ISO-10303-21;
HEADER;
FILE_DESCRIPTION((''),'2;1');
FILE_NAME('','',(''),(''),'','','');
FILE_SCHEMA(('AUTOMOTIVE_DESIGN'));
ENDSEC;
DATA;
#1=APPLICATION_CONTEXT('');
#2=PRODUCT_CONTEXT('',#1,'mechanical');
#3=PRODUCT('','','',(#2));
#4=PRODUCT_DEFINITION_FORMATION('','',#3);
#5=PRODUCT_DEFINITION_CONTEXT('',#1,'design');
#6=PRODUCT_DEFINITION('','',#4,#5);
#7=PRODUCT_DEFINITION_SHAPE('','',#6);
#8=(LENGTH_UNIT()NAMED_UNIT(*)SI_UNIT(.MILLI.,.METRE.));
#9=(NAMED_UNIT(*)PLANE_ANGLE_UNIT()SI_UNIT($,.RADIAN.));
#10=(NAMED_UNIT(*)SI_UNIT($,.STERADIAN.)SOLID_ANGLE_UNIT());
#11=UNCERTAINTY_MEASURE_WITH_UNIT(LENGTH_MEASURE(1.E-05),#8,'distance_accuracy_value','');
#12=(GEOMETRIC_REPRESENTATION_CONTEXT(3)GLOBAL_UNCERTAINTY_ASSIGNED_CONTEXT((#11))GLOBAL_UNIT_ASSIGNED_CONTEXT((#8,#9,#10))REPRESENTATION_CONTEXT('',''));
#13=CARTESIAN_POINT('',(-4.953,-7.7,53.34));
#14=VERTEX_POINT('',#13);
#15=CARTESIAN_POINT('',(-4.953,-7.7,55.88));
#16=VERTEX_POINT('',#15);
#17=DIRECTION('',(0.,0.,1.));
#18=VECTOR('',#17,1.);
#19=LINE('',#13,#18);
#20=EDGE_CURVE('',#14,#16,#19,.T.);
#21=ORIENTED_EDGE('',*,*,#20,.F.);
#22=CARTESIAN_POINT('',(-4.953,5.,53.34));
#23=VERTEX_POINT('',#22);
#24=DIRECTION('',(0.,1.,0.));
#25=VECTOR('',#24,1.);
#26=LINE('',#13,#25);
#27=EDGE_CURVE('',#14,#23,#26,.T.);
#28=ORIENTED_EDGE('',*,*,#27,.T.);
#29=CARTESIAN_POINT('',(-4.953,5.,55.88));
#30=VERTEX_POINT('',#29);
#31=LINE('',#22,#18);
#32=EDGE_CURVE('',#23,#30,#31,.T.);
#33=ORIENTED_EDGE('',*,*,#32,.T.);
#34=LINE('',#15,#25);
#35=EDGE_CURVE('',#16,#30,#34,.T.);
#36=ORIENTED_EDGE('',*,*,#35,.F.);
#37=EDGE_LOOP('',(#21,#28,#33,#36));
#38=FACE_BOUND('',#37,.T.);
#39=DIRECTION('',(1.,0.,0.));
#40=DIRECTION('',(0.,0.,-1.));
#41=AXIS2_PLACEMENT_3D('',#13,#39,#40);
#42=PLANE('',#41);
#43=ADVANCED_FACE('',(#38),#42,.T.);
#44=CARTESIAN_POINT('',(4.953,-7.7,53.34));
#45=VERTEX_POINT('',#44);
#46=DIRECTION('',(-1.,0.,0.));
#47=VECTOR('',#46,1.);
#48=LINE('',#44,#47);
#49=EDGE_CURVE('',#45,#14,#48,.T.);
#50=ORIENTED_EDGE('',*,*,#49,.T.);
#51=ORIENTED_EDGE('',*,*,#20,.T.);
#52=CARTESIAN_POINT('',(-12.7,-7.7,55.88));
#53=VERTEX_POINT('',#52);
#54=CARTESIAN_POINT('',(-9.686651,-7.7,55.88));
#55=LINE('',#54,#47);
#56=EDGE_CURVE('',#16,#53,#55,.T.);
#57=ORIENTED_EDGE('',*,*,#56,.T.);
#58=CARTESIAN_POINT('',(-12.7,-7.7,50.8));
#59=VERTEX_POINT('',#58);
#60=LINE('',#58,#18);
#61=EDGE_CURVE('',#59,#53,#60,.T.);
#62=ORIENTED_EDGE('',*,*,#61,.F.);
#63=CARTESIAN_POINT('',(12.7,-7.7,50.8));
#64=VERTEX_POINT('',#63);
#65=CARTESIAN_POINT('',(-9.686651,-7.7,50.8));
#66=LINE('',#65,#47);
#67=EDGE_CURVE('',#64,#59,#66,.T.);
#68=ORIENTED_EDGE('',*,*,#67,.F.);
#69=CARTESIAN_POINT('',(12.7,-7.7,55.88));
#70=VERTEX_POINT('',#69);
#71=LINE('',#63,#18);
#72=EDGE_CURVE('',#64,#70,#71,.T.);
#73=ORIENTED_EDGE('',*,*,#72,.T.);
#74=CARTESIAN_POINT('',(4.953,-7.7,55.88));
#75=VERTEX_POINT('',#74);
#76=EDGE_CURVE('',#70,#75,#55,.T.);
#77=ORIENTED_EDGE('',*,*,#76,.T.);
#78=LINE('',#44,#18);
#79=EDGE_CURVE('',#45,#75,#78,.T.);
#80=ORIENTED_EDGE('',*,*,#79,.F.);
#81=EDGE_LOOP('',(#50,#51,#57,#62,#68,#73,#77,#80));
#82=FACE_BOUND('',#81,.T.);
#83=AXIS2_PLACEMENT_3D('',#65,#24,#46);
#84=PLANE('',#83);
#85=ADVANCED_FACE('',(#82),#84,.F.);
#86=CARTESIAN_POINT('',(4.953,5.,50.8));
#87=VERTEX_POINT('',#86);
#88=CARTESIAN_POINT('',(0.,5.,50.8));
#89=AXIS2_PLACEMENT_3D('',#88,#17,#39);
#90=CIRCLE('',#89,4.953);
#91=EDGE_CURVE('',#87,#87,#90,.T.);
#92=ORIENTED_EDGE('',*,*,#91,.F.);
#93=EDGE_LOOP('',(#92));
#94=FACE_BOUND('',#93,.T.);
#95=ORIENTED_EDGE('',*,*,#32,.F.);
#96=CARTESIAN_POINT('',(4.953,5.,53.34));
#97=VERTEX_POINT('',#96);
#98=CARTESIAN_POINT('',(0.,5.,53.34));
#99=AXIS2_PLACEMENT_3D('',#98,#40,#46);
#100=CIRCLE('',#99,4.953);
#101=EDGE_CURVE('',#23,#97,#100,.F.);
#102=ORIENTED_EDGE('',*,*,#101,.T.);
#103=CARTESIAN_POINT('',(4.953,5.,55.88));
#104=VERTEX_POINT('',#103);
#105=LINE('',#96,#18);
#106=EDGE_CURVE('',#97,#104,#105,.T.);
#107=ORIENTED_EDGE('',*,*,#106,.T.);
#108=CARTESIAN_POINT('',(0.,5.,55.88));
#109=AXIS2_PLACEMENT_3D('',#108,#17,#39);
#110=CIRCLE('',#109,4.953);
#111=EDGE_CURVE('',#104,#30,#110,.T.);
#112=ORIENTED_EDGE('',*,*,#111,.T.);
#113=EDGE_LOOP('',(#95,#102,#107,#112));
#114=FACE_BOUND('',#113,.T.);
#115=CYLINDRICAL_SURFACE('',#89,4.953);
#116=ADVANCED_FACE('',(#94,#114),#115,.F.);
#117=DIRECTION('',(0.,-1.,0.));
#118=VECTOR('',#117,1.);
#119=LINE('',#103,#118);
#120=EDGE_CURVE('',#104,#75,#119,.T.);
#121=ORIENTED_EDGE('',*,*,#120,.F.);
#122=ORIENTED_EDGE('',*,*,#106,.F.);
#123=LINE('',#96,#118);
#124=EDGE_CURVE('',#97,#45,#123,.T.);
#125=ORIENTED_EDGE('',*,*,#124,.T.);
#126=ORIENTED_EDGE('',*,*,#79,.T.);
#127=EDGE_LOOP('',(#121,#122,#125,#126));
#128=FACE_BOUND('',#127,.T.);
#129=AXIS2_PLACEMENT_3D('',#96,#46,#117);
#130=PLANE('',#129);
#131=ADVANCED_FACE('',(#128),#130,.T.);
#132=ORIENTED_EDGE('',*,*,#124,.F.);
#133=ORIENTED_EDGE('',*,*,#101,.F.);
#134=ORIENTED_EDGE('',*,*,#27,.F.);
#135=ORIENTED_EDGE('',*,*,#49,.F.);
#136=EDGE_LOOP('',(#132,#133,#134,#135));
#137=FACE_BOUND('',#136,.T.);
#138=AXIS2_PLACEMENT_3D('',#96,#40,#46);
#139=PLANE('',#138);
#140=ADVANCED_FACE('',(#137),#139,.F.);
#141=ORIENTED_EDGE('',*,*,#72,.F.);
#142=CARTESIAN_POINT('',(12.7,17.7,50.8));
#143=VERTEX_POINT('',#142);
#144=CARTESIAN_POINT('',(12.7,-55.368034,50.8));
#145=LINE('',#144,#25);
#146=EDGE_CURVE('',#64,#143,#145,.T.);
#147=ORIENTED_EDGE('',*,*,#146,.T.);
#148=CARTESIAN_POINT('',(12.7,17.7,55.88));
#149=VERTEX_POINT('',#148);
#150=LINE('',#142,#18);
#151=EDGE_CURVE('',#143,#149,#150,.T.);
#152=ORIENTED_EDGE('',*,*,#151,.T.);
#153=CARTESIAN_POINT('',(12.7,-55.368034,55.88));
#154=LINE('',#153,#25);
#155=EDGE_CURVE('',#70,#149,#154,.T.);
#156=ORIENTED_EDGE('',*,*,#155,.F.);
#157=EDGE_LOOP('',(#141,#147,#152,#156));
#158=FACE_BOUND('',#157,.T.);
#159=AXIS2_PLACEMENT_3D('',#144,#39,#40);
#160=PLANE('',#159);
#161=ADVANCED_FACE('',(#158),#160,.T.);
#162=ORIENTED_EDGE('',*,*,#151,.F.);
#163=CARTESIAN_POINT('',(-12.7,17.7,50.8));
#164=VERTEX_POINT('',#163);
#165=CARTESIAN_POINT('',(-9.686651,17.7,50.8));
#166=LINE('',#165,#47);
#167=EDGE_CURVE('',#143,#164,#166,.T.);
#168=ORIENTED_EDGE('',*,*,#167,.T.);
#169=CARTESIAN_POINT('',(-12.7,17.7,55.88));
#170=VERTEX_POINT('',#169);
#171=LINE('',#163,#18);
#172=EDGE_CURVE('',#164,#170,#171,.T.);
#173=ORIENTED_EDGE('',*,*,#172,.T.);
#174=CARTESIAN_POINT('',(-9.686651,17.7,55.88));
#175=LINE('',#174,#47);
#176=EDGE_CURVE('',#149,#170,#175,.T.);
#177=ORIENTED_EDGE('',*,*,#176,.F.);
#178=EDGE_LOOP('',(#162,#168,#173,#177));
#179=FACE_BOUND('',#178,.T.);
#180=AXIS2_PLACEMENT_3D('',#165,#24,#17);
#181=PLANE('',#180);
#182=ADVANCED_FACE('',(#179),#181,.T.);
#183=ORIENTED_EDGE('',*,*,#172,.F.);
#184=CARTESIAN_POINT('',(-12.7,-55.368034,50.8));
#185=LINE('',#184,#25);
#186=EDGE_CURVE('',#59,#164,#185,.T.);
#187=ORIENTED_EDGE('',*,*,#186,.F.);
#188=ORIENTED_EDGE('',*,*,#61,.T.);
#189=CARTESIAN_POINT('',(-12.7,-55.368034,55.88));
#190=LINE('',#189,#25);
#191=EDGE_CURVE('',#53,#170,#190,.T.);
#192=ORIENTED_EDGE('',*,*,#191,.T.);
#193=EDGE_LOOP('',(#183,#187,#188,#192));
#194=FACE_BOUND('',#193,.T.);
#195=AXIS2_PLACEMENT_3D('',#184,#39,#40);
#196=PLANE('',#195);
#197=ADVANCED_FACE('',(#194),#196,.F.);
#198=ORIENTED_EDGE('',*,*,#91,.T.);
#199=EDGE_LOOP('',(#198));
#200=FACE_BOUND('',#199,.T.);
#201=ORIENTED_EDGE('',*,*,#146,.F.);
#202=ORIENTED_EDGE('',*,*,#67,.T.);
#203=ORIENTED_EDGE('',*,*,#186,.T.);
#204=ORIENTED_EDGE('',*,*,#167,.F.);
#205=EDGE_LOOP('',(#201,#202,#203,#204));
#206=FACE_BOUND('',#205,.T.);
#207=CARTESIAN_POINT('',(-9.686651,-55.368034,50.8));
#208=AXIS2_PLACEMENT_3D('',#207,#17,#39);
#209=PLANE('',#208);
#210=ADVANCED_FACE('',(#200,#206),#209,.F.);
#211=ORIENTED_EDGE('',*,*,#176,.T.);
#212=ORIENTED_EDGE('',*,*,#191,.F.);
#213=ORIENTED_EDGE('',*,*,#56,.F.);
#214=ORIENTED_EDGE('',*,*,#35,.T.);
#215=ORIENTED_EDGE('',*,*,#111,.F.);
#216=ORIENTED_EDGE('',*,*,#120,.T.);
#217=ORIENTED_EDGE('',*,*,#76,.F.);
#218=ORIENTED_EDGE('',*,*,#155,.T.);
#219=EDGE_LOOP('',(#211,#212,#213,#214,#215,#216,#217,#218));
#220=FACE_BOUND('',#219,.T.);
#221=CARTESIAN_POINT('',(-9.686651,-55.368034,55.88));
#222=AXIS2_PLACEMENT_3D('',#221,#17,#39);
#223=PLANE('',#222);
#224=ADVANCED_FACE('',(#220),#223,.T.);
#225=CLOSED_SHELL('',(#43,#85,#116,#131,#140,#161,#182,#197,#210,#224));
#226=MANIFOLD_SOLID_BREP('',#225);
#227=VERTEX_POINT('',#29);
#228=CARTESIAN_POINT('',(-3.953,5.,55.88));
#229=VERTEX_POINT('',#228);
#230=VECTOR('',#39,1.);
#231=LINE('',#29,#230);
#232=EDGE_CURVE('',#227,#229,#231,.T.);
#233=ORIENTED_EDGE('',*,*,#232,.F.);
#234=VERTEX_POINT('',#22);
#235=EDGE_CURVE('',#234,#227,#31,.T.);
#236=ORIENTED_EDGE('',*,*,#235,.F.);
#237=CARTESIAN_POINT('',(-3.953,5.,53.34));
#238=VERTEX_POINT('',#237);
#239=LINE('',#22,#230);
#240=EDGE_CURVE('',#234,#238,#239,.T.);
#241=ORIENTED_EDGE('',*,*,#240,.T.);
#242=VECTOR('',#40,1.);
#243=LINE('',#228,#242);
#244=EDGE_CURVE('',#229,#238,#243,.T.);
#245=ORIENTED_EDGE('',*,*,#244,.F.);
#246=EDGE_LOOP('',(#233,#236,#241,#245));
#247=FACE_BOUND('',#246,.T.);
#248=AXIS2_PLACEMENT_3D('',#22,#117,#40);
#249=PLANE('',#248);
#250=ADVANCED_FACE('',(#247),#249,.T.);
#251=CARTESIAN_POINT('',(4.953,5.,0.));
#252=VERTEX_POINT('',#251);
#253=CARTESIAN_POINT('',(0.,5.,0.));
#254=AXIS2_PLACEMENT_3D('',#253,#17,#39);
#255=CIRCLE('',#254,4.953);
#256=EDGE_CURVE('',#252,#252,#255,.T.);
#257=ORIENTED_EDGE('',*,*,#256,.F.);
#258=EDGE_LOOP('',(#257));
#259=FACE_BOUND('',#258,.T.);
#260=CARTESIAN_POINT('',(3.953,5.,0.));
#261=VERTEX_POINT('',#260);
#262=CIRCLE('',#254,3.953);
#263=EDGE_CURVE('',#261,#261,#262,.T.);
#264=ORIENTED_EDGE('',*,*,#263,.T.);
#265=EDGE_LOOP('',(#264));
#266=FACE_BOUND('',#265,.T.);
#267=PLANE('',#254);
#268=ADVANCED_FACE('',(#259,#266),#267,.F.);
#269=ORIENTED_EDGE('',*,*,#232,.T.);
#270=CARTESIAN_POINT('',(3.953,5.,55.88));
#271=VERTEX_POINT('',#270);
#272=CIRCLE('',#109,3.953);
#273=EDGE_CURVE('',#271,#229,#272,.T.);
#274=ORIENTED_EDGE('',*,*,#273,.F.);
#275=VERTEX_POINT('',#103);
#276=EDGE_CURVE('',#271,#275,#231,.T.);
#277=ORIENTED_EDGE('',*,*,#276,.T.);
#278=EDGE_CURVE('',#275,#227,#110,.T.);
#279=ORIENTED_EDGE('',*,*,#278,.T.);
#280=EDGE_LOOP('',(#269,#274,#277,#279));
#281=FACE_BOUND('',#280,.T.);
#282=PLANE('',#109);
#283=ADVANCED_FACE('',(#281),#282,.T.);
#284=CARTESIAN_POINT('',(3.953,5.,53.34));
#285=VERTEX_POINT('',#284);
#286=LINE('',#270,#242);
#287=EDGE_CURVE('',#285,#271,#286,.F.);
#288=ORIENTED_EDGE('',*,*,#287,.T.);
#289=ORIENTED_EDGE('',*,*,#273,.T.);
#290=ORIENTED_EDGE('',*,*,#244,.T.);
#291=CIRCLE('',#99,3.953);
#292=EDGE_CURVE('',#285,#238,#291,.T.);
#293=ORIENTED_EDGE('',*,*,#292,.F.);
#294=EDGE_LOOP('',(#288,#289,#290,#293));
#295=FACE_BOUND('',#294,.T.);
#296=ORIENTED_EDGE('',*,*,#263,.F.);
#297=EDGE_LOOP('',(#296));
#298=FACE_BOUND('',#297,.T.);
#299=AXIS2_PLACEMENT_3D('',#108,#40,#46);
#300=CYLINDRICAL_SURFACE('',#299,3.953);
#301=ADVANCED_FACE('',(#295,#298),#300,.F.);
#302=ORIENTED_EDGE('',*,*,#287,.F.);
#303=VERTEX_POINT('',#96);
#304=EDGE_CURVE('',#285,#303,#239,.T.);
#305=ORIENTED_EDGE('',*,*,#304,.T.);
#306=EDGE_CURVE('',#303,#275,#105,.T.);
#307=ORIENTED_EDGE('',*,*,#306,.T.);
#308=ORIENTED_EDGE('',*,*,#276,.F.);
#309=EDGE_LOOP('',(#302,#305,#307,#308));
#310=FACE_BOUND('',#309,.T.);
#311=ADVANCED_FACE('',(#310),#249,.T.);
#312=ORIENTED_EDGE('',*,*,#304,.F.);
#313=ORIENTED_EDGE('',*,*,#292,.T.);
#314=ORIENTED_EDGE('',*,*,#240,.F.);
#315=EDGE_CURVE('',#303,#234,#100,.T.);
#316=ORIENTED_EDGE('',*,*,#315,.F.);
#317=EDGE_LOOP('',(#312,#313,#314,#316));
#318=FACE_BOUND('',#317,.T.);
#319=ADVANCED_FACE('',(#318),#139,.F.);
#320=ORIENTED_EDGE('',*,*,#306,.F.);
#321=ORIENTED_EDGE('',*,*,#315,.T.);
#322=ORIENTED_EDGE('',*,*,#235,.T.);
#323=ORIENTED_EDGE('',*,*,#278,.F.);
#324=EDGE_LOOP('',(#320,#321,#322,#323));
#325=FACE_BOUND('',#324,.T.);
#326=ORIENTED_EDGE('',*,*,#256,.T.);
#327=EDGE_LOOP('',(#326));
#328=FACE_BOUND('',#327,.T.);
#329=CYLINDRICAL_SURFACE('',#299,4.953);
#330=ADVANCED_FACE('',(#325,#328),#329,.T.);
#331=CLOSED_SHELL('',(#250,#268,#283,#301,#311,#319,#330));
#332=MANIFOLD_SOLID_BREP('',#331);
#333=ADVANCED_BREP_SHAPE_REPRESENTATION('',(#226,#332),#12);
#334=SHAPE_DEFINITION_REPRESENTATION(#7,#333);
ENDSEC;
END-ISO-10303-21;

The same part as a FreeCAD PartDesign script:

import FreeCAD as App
import Part
import Sketcher

V = App.Vector
Q = App.Units.Quantity


def add_polygon(sketch, points):
    """Adds a closed chain of lines whose ends are joined by coincident constraints."""
    first, n = sketch.GeometryCount, len(points)
    for a, b in zip(points, points[1:] + points[:1]):
        sketch.addGeometry(Part.LineSegment(App.Vector(*a, 0), App.Vector(*b, 0)), False)
    for i in range(n):
        sketch.addConstraint(Sketcher.Constraint("Coincident", first + i, 2, first + (i + 1) % n, 1))

doc = App.newDocument("Part")
params = doc.addObject("Spreadsheet::Sheet", "Params")
for row, (alias, value) in enumerate([
    ("sketch1_diameter", "0.39 in"),
    ("pad1_length", "2.2 in"),
    ("sketch2_diameter", "0.39 in"),
    ("sketch2_width", "1 in"),
    ("pad2_length", "0.2 in"),
    ("sketch3_height", "0.5 in"),
    ("sketch3_width", "0.39 in"),
    ("pad3_length", "0.1 in"),
], start=1):
    params.set(f"A{row}", alias)
    params.set(f"B{row}", "=" + value)
    params.setAlias(f"B{row}", alias)

body = doc.addObject("PartDesign::Body", "Body")

sketch1 = body.newObject("Sketcher::SketchObject", "Sketch")
sketch1.AttachmentSupport = (doc.getObject("XY_Plane"), [""])
sketch1.MapMode = "FlatFace"
sketch1.addGeometry(Part.Circle(V(0, 5, 0), V(0, 0, 1), 4.953), False)
sketch1.addGeometry(Part.Circle(V(0, 5, 0), V(0, 0, 1), 3.953), False)
sketch1.addConstraint(Sketcher.Constraint("Coincident", 1, 3, 0, 3))
sketch1.addConstraint(Sketcher.Constraint("PointOnObject", 0, 3, -2))
sketch1.addConstraint(Sketcher.Constraint("Diameter", 0, Q("0.39 in")))
sketch1.addConstraint(Sketcher.Constraint("Diameter", 1, 7.906))
sketch1.addConstraint(Sketcher.Constraint("DistanceY", -1, 1, 0, 3, 5.0))
sketch1.setExpression("Constraints[2]", "Params.sketch1_diameter")
pad1 = body.newObject("PartDesign::Pad", "Pad")
pad1.Profile = sketch1
pad1.setExpression("Length", "Params.pad1_length")
body2 = doc.addObject("PartDesign::Body", "Body001")

sketch2 = body2.newObject("Sketcher::SketchObject", "Sketch001")
sketch2.AttachmentSupport = (doc.getObject("XY_Plane001"), [""])
sketch2.MapMode = "FlatFace"
sketch2.AttachmentOffset = App.Placement(V(0, 0, 2.2 * 25.4), App.Rotation())
add_polygon(sketch2, [(-12.7, 17.7), (-12.7, -7.7), (12.7, -7.7), (12.7, 17.7)])
sketch2.addGeometry(Part.Circle(V(0, 5, 0), V(0, 0, 1), 4.953), False)
sketch2.addConstraint(Sketcher.Constraint("Vertical", 0))
sketch2.addConstraint(Sketcher.Constraint("Horizontal", 1))
sketch2.addConstraint(Sketcher.Constraint("Vertical", 2))
sketch2.addConstraint(Sketcher.Constraint("Horizontal", 3))
sketch2.addConstraint(Sketcher.Constraint("PointOnObject", 4, 3, -2))
sketch2.addConstraint(Sketcher.Constraint("Equal", 3, 0))
sketch2.addConstraint(Sketcher.Constraint("Diameter", 4, Q("0.39 in")))
sketch2.addConstraint(Sketcher.Constraint("DistanceX", 1, 1, 1, 2, Q("1 in")))
sketch2.addConstraint(Sketcher.Constraint("DistanceX", 0, 2, -1, 1, Q("0.5 in")))
sketch2.addConstraint(Sketcher.Constraint("DistanceY", 0, 2, 4, 3, Q("0.5 in")))
sketch2.addConstraint(Sketcher.Constraint("DistanceY", -1, 1, 4, 3, 5.0))
sketch2.setExpression("Constraints[10]", "Params.sketch2_diameter")
sketch2.setExpression("Constraints[11]", "Params.sketch2_width")
pad2 = body2.newObject("PartDesign::Pad", "Pad001")
pad2.Profile = sketch2
pad2.setExpression("Length", "Params.pad2_length")
pad2.Reversed = True
body3 = doc.addObject("PartDesign::Body", "Body002")

sketch3 = body3.newObject("Sketcher::SketchObject", "Sketch002")
sketch3.AttachmentSupport = (doc.getObject("XY_Plane002"), [""])
sketch3.MapMode = "FlatFace"
sketch3.AttachmentOffset = App.Placement(V(0, 0, 2.2 * 25.4), App.Rotation())
add_polygon(sketch3, [(4.953, 5), (4.953, -7.7), (-4.953, -7.7), (-4.953, 5)])
sketch3.addConstraint(Sketcher.Constraint("Vertical", 0))
sketch3.addConstraint(Sketcher.Constraint("Horizontal", 1))
sketch3.addConstraint(Sketcher.Constraint("Vertical", 2))
sketch3.addConstraint(Sketcher.Constraint("Horizontal", 3))
sketch3.addConstraint(Sketcher.Constraint("DistanceY", 0, 2, 0, 1, Q("0.5 in")))
sketch3.addConstraint(Sketcher.Constraint("DistanceX", 1, 2, 1, 1, Q("0.39 in")))
sketch3.addConstraint(Sketcher.Constraint("DistanceX", -1, 1, 0, 2, Q("0.195 in")))
sketch3.addConstraint(Sketcher.Constraint("DistanceY", 0, 2, -1, 1, 7.7))
sketch3.setExpression("Constraints[8]", "Params.sketch3_height")
sketch3.setExpression("Constraints[9]", "Params.sketch3_width")
pad3 = body3.newObject("PartDesign::Pad", "Pad002")
pad3.Profile = sketch3
pad3.setExpression("Length", "Params.pad3_length")
pad3.Reversed = True
doc.recompute()

body4 = doc.addObject("PartDesign::Body", "Body003")
body4.BaseFeature = body3
boolean = body.newObject("PartDesign::Boolean", "Boolean")
boolean.Type = "Cut"
boolean.addObjects([body4])
doc.recompute()

boolean2 = body2.newObject("PartDesign::Boolean", "Boolean001")
boolean2.Type = "Cut"
boolean2.addObjects([body3])

doc.recompute()
